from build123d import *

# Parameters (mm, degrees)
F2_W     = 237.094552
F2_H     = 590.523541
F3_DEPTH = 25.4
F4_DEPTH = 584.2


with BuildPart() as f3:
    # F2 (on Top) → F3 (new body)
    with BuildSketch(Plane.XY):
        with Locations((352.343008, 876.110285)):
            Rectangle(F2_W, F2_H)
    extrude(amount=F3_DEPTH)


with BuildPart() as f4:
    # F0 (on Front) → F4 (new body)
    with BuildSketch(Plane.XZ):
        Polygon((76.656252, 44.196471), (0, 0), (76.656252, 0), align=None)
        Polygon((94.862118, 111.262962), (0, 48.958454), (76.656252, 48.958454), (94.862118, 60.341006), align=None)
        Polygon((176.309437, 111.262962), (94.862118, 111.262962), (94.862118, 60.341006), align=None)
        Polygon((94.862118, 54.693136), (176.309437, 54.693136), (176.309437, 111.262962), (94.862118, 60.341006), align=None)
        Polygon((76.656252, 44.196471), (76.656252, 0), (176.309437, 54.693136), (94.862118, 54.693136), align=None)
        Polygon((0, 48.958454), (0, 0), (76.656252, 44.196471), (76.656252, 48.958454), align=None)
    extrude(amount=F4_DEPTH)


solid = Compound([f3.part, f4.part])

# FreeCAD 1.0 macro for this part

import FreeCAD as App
import Part
import Sketcher

V = App.Vector
Q = App.Units.Quantity

doc = App.newDocument("Part")
body = doc.addObject("PartDesign::Body", "Body")

# Sketch on XY plane
sketch1 = body.newObject("Sketcher::SketchObject", "Sketch")
sketch1.AttachmentSupport = (doc.getObject("XY_Plane"), [""])
sketch1.MapMode = "FlatFace"
sketch1.addGeometry(Part.LineSegment(V(234, 1171, 0), V(234, 581, 0)), False)
sketch1.addGeometry(Part.LineSegment(V(234, 581, 0), V(471, 581, 0)), False)
sketch1.addGeometry(Part.LineSegment(V(471, 581, 0), V(471, 1171, 0)), False)
sketch1.addGeometry(Part.LineSegment(V(471, 1171, 0), V(234, 1171, 0)), False)
sketch1.addConstraint(Sketcher.Constraint("Coincident", 0, 2, 1, 1))
sketch1.addConstraint(Sketcher.Constraint("Coincident", 1, 2, 2, 1))
sketch1.addConstraint(Sketcher.Constraint("Coincident", 2, 2, 3, 1))
sketch1.addConstraint(Sketcher.Constraint("Coincident", 3, 2, 0, 1))
sketch1.addConstraint(Sketcher.Constraint("Vertical", 0))
sketch1.addConstraint(Sketcher.Constraint("Horizontal", 1))
sketch1.addConstraint(Sketcher.Constraint("Vertical", 2))
sketch1.addConstraint(Sketcher.Constraint("Horizontal", 3))
sketch1.addConstraint(Sketcher.Constraint("DistanceY", 0, 2, 0, 1, Q("590.523541 mm")))
sketch1.addConstraint(Sketcher.Constraint("DistanceX", 1, 1, 1, 2, Q("237.094552 mm")))
sketch1.addConstraint(Sketcher.Constraint("DistanceX", -1, 1, 0, 2, Q("233.795732 mm")))
sketch1.addConstraint(Sketcher.Constraint("DistanceY", -1, 1, 0, 2, Q("580.848514 mm")))
pad1 = body.newObject("PartDesign::Pad", "Pad")
pad1.Profile = sketch1
pad1.Length = Q("1 in")
body2 = doc.addObject("PartDesign::Body", "Body001")

# Sketch on XZ plane
sketch2 = body2.newObject("Sketcher::SketchObject", "Sketch001")
sketch2.AttachmentSupport = (doc.getObject("XZ_Plane001"), [""])
sketch2.MapMode = "FlatFace"
sketch2.addGeometry(Part.LineSegment(V(0, 0, 0), V(76.656252, 0, 0)), False)
sketch2.addGeometry(Part.LineSegment(V(76.656252, 0, 0), V(176.309437, 54.693136, 0)), False)
sketch2.addGeometry(Part.LineSegment(V(176.309437, 54.693136, 0), V(176.309437, 111.262962, 0)), False)
sketch2.addGeometry(Part.LineSegment(V(176.309437, 111.262962, 0), V(94.862118, 111.262962, 0)), False)
sketch2.addGeometry(Part.LineSegment(V(94.862118, 111.262962, 0), V(0, 48.958454, 0)), False)
sketch2.addGeometry(Part.LineSegment(V(0, 48.958454, 0), V(0, 0, 0)), False)
sketch2.addGeometry(Part.LineSegment(V(76.656252, 48.958454, 0), V(94.862118, 60.341006, 0)), False)
sketch2.addGeometry(Part.LineSegment(V(94.862118, 60.341006, 0), V(94.862118, 54.693136, 0)), False)
sketch2.addGeometry(Part.LineSegment(V(94.862118, 54.693136, 0), V(76.656252, 44.196471, 0)), False)
sketch2.addGeometry(Part.LineSegment(V(76.656252, 44.196471, 0), V(76.656252, 48.958454, 0)), False)
sketch2.addConstraint(Sketcher.Constraint("Coincident", 0, 2, 1, 1))
sketch2.addConstraint(Sketcher.Constraint("Coincident", 1, 2, 2, 1))
sketch2.addConstraint(Sketcher.Constraint("Coincident", 2, 2, 3, 1))
sketch2.addConstraint(Sketcher.Constraint("Coincident", 3, 2, 4, 1))
sketch2.addConstraint(Sketcher.Constraint("Coincident", 4, 2, 5, 1))
sketch2.addConstraint(Sketcher.Constraint("Coincident", 5, 2, 0, 1))
sketch2.addConstraint(Sketcher.Constraint("Coincident", 6, 2, 7, 1))
sketch2.addConstraint(Sketcher.Constraint("Coincident", 7, 2, 8, 1))
sketch2.addConstraint(Sketcher.Constraint("Coincident", 8, 2, 9, 1))
sketch2.addConstraint(Sketcher.Constraint("Coincident", 9, 2, 6, 1))
sketch2.addConstraint(Sketcher.Constraint("Horizontal", 0))
sketch2.addConstraint(Sketcher.Constraint("Vertical", 2))
sketch2.addConstraint(Sketcher.Constraint("Horizontal", 3))
sketch2.addConstraint(Sketcher.Constraint("Vertical", 5))
sketch2.addConstraint(Sketcher.Constraint("Vertical", 7))
sketch2.addConstraint(Sketcher.Constraint("Vertical", 9))
sketch2.addConstraint(Sketcher.Constraint("Coincident", 5, 2, -1, 1))
sketch2.addConstraint(Sketcher.Constraint("Distance", 1, Q("113.675399 mm")))
sketch2.addConstraint(Sketcher.Constraint("DistanceX", 0, 1, 0, 2, Q("76.656252 mm")))
sketch2.addConstraint(Sketcher.Constraint("DistanceX", 3, 2, 3, 1, Q("81.447319 mm")))
sketch2.addConstraint(Sketcher.Constraint("DistanceY", 7, 2, 7, 1, Q("5.64787 mm")))
sketch2.addConstraint(Sketcher.Constraint("Distance", 8, Q("21.015079 mm")))
sketch2.addConstraint(Sketcher.Constraint("DistanceY", 2, 1, 2, 2, Q("56.569826 mm")))
sketch2.addConstraint(Sketcher.Constraint("DistanceY", 5, 2, 5, 1, Q("48.958454 mm")))
sketch2.addConstraint(Sketcher.Constraint("DistanceY", 9, 1, 9, 2, Q("4.761983 mm")))
sketch2.addConstraint(Sketcher.Constraint("DistanceY", -1, 1, 2, 2, Q("111.262962 mm")))
sketch2.addConstraint(Sketcher.Constraint("DistanceX", -1, 1, 8, 2, Q("76.656252 mm")))
sketch2.addConstraint(Sketcher.Constraint("DistanceY", -1, 1, 8, 2, Q("44.196471 mm")))
sketch2.addConstraint(Sketcher.Constraint("DistanceX", 6, 2, 1, 2, Q("81.447319 mm")))
pad2 = body2.newObject("PartDesign::Pad", "Pad001")
pad2.Profile = sketch2
pad2.Length = Q("23 in")

doc.recompute()
